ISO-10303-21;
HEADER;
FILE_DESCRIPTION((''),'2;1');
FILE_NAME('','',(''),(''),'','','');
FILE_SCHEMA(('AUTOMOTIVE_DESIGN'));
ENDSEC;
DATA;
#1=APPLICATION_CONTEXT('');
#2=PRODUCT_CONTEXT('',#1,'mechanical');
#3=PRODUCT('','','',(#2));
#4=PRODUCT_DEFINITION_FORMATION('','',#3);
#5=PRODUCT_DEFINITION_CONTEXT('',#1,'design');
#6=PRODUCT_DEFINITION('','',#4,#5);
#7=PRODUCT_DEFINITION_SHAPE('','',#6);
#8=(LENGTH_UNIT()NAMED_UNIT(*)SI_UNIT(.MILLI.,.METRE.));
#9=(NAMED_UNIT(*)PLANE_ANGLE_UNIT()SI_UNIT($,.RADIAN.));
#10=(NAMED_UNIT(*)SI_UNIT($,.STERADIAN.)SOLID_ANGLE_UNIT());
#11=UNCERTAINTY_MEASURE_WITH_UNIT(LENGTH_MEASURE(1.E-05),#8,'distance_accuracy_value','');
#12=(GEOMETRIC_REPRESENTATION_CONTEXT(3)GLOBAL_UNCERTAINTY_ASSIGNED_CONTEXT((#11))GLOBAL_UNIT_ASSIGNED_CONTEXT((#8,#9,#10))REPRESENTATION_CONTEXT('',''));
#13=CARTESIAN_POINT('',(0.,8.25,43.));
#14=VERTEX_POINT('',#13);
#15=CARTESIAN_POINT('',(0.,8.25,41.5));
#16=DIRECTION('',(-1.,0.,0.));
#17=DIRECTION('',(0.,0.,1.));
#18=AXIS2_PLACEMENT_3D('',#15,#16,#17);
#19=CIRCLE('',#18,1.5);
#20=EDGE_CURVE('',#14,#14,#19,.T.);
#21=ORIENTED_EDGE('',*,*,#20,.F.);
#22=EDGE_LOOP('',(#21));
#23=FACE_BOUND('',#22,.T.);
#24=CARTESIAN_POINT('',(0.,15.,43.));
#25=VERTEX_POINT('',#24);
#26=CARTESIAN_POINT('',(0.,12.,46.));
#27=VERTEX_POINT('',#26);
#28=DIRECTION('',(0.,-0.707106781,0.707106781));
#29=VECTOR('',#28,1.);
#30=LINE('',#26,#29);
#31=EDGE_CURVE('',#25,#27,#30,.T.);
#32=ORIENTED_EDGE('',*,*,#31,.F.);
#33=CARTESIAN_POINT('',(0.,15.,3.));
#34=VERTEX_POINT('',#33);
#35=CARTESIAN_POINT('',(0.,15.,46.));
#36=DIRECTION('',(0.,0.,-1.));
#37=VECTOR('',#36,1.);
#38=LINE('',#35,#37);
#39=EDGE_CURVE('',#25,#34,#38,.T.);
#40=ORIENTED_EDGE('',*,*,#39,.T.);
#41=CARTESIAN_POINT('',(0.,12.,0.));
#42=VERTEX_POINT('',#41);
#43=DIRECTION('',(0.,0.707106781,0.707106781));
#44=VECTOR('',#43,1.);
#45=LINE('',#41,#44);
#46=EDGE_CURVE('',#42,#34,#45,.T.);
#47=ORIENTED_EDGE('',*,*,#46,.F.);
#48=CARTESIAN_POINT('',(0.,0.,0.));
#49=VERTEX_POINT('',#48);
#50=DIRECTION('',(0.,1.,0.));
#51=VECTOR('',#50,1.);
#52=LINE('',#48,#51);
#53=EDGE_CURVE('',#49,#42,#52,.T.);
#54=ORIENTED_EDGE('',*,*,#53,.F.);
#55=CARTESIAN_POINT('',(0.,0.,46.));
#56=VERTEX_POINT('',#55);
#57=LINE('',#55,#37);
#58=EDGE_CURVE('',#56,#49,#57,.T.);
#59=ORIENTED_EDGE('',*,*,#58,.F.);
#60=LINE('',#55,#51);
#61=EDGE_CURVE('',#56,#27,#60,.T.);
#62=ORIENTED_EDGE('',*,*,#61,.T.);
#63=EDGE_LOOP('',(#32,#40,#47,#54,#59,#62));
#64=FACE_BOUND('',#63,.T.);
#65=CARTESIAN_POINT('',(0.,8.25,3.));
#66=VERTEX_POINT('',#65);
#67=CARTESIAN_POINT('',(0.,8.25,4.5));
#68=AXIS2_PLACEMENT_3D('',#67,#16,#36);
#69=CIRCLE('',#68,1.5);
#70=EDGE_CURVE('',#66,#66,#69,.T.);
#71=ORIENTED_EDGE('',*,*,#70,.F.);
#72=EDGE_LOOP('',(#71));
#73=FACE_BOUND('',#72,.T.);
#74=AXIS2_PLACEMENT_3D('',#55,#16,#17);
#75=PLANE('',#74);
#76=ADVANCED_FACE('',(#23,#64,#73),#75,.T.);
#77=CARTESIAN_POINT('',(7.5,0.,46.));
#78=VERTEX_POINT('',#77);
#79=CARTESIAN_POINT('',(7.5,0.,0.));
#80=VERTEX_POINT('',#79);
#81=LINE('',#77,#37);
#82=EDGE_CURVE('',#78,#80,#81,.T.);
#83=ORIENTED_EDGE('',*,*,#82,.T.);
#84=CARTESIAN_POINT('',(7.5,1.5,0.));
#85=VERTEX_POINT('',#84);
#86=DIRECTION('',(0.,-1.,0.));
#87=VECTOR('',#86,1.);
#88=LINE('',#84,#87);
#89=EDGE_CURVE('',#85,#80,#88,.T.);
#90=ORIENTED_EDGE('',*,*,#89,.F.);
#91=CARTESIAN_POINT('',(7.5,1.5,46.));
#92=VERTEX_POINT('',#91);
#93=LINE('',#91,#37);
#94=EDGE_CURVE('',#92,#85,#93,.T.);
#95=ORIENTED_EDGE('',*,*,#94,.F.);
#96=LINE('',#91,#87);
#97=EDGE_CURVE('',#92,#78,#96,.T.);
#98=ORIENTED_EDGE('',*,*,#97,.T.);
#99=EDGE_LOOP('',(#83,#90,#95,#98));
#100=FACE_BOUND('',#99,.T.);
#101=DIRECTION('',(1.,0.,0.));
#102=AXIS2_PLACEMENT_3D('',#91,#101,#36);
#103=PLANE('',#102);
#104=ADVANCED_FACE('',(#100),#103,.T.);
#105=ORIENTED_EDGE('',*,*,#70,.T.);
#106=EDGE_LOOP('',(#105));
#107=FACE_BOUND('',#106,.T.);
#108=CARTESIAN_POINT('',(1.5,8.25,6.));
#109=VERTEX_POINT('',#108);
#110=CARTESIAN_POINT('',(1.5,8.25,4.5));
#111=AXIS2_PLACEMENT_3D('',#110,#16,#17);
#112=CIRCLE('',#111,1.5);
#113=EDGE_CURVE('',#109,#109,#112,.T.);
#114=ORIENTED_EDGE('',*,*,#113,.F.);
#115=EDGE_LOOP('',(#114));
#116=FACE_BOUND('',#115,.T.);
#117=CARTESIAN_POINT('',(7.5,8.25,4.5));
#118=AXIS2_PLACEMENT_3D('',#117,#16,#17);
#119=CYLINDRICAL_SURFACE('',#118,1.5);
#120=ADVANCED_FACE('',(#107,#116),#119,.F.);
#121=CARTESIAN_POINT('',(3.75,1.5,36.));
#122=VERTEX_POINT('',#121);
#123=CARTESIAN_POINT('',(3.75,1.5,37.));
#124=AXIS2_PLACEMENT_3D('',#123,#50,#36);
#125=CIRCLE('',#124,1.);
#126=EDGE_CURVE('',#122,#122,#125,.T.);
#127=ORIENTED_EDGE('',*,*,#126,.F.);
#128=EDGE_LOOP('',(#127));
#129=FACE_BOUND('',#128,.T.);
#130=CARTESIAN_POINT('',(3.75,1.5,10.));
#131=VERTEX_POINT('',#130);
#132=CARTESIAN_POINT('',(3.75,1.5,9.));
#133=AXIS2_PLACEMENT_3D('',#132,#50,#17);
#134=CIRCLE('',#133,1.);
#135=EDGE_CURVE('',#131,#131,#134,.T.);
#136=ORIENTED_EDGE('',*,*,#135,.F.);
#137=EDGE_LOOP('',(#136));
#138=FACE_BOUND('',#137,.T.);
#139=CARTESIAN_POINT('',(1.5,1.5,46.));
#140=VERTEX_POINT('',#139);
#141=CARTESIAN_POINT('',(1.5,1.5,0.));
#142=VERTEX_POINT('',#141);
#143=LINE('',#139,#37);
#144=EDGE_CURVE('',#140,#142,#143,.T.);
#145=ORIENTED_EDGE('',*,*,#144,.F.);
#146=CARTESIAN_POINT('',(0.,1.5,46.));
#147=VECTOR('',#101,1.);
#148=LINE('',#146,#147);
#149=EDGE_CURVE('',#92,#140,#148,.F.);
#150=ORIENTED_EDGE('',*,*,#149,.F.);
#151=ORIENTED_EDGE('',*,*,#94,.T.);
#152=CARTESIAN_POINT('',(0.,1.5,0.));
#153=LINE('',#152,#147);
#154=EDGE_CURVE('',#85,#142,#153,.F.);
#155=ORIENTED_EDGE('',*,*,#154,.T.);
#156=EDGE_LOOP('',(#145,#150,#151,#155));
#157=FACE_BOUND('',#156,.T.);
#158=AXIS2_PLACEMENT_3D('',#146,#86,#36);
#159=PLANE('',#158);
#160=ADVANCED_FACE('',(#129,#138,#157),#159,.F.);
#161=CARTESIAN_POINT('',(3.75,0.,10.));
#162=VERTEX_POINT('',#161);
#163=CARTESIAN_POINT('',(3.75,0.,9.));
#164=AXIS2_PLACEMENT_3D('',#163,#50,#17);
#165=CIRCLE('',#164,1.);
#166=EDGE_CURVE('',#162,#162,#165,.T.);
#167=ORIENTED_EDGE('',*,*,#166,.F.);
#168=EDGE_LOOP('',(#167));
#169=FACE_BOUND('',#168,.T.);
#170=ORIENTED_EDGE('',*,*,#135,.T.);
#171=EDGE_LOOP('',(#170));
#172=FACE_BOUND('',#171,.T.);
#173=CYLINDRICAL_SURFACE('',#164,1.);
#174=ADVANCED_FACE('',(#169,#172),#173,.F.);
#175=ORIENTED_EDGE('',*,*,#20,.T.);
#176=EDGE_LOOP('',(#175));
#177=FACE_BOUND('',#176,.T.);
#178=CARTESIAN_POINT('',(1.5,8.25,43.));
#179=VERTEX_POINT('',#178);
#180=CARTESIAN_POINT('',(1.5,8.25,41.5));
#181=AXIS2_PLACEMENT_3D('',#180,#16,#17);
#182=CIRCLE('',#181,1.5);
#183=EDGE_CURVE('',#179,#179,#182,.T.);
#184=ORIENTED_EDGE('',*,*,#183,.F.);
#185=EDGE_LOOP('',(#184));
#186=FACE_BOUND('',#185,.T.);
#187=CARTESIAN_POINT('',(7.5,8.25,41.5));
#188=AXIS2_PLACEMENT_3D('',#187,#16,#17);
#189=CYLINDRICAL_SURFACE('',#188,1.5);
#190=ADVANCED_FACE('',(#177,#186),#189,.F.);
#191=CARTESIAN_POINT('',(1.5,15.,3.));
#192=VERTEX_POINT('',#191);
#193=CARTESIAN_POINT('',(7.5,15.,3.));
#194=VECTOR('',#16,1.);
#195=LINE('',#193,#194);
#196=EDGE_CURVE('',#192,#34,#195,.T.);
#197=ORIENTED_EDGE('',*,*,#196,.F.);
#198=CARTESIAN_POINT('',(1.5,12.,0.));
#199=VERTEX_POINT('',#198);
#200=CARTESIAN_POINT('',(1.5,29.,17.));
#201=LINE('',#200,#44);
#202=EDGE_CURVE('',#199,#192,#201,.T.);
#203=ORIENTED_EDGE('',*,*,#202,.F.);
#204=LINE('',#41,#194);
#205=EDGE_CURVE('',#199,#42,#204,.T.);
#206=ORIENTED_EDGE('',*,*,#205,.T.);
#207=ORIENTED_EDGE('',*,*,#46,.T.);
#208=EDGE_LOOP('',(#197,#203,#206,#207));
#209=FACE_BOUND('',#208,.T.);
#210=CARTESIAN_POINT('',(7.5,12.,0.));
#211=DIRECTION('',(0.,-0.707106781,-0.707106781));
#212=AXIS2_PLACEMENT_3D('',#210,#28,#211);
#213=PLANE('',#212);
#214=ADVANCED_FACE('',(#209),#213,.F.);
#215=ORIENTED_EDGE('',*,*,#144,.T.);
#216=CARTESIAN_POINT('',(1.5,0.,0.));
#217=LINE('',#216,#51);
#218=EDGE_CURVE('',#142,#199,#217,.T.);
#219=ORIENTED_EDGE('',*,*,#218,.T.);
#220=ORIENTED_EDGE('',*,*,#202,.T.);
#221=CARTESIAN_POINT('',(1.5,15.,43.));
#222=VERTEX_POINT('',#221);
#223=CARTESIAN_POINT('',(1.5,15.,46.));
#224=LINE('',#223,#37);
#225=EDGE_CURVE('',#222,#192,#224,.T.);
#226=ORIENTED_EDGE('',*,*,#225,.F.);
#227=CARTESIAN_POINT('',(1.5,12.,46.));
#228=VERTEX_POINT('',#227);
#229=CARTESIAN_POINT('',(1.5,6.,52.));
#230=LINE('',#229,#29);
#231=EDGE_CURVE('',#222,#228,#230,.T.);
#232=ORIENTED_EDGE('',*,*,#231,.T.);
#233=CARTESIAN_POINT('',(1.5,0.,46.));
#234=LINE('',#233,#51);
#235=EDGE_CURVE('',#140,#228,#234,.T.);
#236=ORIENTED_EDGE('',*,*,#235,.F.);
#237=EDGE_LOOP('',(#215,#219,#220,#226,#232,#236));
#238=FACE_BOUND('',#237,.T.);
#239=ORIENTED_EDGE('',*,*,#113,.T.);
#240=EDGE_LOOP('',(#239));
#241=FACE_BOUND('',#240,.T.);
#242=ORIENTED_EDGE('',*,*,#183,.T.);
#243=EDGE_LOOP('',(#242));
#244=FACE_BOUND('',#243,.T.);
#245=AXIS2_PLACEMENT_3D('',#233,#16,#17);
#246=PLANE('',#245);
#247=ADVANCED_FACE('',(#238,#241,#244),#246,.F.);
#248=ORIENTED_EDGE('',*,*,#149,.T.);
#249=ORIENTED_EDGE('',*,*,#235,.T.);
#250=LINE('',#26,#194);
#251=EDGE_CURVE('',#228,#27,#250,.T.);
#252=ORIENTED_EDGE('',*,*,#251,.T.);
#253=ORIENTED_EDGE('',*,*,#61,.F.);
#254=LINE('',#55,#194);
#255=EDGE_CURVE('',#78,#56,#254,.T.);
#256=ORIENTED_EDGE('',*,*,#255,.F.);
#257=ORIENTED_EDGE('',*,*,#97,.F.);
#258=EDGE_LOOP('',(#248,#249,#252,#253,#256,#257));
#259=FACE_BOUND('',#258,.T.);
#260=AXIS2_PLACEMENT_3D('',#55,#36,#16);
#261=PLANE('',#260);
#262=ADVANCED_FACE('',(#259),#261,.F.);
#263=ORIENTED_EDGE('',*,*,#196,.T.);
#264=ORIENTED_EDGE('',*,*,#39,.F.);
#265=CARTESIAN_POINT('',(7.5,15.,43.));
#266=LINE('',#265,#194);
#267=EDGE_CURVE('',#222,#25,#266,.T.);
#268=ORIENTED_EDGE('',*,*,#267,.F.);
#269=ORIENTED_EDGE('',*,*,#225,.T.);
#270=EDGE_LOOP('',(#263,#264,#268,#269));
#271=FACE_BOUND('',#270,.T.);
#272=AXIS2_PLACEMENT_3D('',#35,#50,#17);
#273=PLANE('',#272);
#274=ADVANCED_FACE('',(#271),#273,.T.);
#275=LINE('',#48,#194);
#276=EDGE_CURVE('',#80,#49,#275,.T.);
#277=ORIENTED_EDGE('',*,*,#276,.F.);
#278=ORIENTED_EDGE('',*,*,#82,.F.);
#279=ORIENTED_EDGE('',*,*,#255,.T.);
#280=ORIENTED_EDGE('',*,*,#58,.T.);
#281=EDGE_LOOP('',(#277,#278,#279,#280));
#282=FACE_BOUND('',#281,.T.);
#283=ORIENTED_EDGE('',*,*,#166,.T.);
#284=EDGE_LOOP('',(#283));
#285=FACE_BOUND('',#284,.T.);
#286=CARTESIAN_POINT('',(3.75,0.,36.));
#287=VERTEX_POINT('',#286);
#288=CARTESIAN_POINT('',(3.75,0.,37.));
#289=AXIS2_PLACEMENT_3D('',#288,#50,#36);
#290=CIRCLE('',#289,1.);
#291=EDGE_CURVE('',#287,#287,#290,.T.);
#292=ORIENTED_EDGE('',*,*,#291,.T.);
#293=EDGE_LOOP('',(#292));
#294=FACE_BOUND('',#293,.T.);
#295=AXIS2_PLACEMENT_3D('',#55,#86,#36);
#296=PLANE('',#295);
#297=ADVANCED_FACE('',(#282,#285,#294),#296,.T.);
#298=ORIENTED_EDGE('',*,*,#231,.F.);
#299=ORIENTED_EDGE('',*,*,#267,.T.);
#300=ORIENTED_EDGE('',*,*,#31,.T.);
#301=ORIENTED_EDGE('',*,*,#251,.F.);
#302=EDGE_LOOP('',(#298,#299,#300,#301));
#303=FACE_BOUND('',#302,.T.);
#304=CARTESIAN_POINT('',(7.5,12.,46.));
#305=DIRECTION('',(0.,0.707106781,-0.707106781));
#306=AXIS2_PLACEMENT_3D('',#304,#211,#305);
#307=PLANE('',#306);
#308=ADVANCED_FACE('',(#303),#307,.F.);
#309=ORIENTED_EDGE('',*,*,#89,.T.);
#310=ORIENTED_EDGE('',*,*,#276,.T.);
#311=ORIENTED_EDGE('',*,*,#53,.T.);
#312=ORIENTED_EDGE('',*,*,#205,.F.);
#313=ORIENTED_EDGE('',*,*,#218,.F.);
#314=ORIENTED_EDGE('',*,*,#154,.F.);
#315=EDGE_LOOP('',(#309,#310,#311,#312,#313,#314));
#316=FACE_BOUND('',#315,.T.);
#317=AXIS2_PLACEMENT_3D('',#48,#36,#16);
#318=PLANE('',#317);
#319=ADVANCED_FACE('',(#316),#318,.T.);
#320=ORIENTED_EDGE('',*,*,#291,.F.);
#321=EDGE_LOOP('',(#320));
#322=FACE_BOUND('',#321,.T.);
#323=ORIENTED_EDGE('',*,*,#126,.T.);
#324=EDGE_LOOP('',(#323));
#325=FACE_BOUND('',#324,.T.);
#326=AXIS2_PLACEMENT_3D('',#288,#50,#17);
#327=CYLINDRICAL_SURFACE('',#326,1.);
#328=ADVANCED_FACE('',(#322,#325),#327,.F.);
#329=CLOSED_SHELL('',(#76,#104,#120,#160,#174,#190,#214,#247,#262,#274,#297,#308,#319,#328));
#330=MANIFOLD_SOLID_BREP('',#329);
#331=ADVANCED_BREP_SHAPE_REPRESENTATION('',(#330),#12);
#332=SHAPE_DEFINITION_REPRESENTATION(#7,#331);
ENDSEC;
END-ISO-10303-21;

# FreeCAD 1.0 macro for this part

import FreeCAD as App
import Part
import Sketcher
from FreeCAD import Vector
Q = App.Units.Quantity

doc = App.newDocument("Part")
body = doc.addObject("PartDesign::Body", "Body")

sketch1 = body.newObject("Sketcher::SketchObject", "Sketch")
sketch1.AttachmentSupport = (doc.getObject("XY_Plane"), [""])
sketch1.MapMode = "FlatFace"
sketch1.addGeometry(Part.LineSegment(Vector(0, 15, 0), Vector(0, 0, 0)), False)
sketch1.addGeometry(Part.LineSegment(Vector(0, 0, 0), Vector(7.5, 0, 0)), False)
sketch1.addGeometry(Part.LineSegment(Vector(7.5, 0, 0), Vector(7.5, 1.5, 0)), False)
sketch1.addGeometry(Part.LineSegment(Vector(7.5, 1.5, 0), Vector(1.5, 1.5, 0)), False)
sketch1.addGeometry(Part.LineSegment(Vector(1.5, 1.5, 0), Vector(1.5, 15, 0)), False)
sketch1.addGeometry(Part.LineSegment(Vector(1.5, 15, 0), Vector(0, 15, 0)), False)
sketch1.addConstraint(Sketcher.Constraint("Coincident", 0, 2, 1, 1))
sketch1.addConstraint(Sketcher.Constraint("Coincident", 1, 2, 2, 1))
sketch1.addConstraint(Sketcher.Constraint("Coincident", 2, 2, 3, 1))
sketch1.addConstraint(Sketcher.Constraint("Coincident", 3, 2, 4, 1))
sketch1.addConstraint(Sketcher.Constraint("Coincident", 4, 2, 5, 1))
sketch1.addConstraint(Sketcher.Constraint("Coincident", 5, 2, 0, 1))
sketch1.addConstraint(Sketcher.Constraint("Vertical", 0))
sketch1.addConstraint(Sketcher.Constraint("Horizontal", 1))
sketch1.addConstraint(Sketcher.Constraint("Vertical", 2))
sketch1.addConstraint(Sketcher.Constraint("Horizontal", 3))
sketch1.addConstraint(Sketcher.Constraint("Vertical", 4))
sketch1.addConstraint(Sketcher.Constraint("Horizontal", 5))
sketch1.addConstraint(Sketcher.Constraint("Coincident", 0, 2, -1, 1))
sketch1.addConstraint(Sketcher.Constraint("Equal", 5, 2))
sketch1.addConstraint(Sketcher.Constraint("DistanceX", 3, 2, 3, 1, Q("6 mm")))
sketch1.addConstraint(Sketcher.Constraint("DistanceY", 0, 2, 0, 1, Q("15 mm")))
sketch1.addConstraint(Sketcher.Constraint("DistanceX", 1, 1, 1, 2, Q("7.5 mm")))
pad1 = body.newObject("PartDesign::Pad", "Pad")
pad1.Profile = sketch1
pad1.Length = 46

sketch2 = body.newObject("Sketcher::SketchObject", "Sketch001")
sketch2.AttachmentSupport = (doc.getObject("XZ_Plane"), [""])
sketch2.MapMode = "FlatFace"
sketch2.AttachmentOffset = App.Placement(Vector(0, 0, -1.5), App.Rotation())
sketch2.addGeometry(Part.Circle(Vector(3.75, 9, 0), Vector(0, 0, 1), 1), False)
sketch2.addGeometry(Part.Circle(Vector(3.75, 37, 0), Vector(0, 0, 1), 1), False)
sketch2.addConstraint(Sketcher.Constraint("Equal", 0, 1))
sketch2.addConstraint(Sketcher.Constraint("Vertical", 0, 3, 1, 3))
sketch2.addConstraint(Sketcher.Constraint("Diameter", 0, Q("2 mm")))
sketch2.addConstraint(Sketcher.Constraint("DistanceY", -1, 1, 0, 3, Q("9 mm")))
sketch2.addConstraint(Sketcher.Constraint("DistanceY", -1, 1, 1, 3, Q("37 mm")))
sketch2.addConstraint(Sketcher.Constraint("DistanceX", -1, 1, 0, 3, Q("3.75 mm")))
pocket1 = body.newObject("PartDesign::Pocket", "Pocket")
pocket1.Profile = sketch2
pocket1.Type = "ThroughAll"
pocket1.Reversed = True

sketch3 = body.newObject("Sketcher::SketchObject", "Sketch002")
sketch3.AttachmentSupport = (doc.getObject("YZ_Plane"), [""])
sketch3.MapMode = "FlatFace"
sketch3.addGeometry(Part.Circle(Vector(8.25, 41.5, 0), Vector(0, 0, 1), 1.5), False)
sketch3.addGeometry(Part.Circle(Vector(8.25, 4.5, 0), Vector(0, 0, 1), 1.5), False)
sketch3.addConstraint(Sketcher.Constraint("Equal", 0, 1))
sketch3.addConstraint(Sketcher.Constraint("Vertical", 0, 3, 1, 3))
sketch3.addConstraint(Sketcher.Constraint("Diameter", 0, Q("3 mm")))
sketch3.addConstraint(Sketcher.Constraint("DistanceY", 1, 3, 0, 3, Q("37 mm")))
sketch3.addConstraint(Sketcher.Constraint("DistanceY", -1, 1, 0, 3, Q("41.5 mm")))
sketch3.addConstraint(Sketcher.Constraint("DistanceX", -1, 1, 0, 3, Q("8.25 mm")))
pocket2 = body.newObject("PartDesign::Pocket", "Pocket001")
pocket2.Profile = sketch3
pocket2.Type = "ThroughAll"
pocket2.Reversed = True

sketch4 = body.newObject("Sketcher::SketchObject", "Sketch003")
sketch4.AttachmentSupport = (doc.getObject("YZ_Plane"), [""])
sketch4.MapMode = "FlatFace"
sketch4.addGeometry(Part.LineSegment(Vector(12, 0, 0), Vector(15, 3, 0)), False)
sketch4.addGeometry(Part.LineSegment(Vector(15, 3, 0), Vector(15, 0, 0)), False)
sketch4.addGeometry(Part.LineSegment(Vector(15, 0, 0), Vector(12, 0, 0)), False)
sketch4.addGeometry(Part.LineSegment(Vector(15, 46, 0), Vector(15, 43, 0)), False)
sketch4.addGeometry(Part.LineSegment(Vector(15, 43, 0), Vector(12, 46, 0)), False)
sketch4.addGeometry(Part.LineSegment(Vector(12, 46, 0), Vector(15, 46, 0)), False)
sketch4.addConstraint(Sketcher.Constraint("Coincident", 0, 2, 1, 1))
sketch4.addConstraint(Sketcher.Constraint("Coincident", 1, 2, 2, 1))
sketch4.addConstraint(Sketcher.Constraint("Coincident", 2, 2, 0, 1))
sketch4.addConstraint(Sketcher.Constraint("Coincident", 3, 2, 4, 1))
sketch4.addConstraint(Sketcher.Constraint("Coincident", 4, 2, 5, 1))
sketch4.addConstraint(Sketcher.Constraint("Coincident", 5, 2, 3, 1))
sketch4.addConstraint(Sketcher.Constraint("Vertical", 1))
sketch4.addConstraint(Sketcher.Constraint("Horizontal", 2))
sketch4.addConstraint(Sketcher.Constraint("Vertical", 3))
sketch4.addConstraint(Sketcher.Constraint("Horizontal", 5))
sketch4.addConstraint(Sketcher.Constraint("PointOnObject", 1, 2, -1))
sketch4.addConstraint(Sketcher.Constraint("Perpendicular", 0, 4))
sketch4.addConstraint(Sketcher.Constraint("Vertical", 1, 2, 3, 2))
sketch4.addConstraint(Sketcher.Constraint("Vertical", 2, 2, 4, 2))
sketch4.addConstraint(Sketcher.Constraint("Equal", 5, 1))
sketch4.addConstraint(Sketcher.Constraint("DistanceX", 2, 2, 2, 1, Q("3 mm")))
sketch4.addConstraint(Sketcher.Constraint("DistanceX", -1, 1, 0, 2, Q("15 mm")))
sketch4.addConstraint(Sketcher.Constraint("DistanceY", -1, 1, 3, 2, Q("43 mm")))
pocket3 = body.newObject("PartDesign::Pocket", "Pocket002")
pocket3.Profile = sketch4
pocket3.Type = "ThroughAll"
pocket3.Reversed = True

doc.recompute()
